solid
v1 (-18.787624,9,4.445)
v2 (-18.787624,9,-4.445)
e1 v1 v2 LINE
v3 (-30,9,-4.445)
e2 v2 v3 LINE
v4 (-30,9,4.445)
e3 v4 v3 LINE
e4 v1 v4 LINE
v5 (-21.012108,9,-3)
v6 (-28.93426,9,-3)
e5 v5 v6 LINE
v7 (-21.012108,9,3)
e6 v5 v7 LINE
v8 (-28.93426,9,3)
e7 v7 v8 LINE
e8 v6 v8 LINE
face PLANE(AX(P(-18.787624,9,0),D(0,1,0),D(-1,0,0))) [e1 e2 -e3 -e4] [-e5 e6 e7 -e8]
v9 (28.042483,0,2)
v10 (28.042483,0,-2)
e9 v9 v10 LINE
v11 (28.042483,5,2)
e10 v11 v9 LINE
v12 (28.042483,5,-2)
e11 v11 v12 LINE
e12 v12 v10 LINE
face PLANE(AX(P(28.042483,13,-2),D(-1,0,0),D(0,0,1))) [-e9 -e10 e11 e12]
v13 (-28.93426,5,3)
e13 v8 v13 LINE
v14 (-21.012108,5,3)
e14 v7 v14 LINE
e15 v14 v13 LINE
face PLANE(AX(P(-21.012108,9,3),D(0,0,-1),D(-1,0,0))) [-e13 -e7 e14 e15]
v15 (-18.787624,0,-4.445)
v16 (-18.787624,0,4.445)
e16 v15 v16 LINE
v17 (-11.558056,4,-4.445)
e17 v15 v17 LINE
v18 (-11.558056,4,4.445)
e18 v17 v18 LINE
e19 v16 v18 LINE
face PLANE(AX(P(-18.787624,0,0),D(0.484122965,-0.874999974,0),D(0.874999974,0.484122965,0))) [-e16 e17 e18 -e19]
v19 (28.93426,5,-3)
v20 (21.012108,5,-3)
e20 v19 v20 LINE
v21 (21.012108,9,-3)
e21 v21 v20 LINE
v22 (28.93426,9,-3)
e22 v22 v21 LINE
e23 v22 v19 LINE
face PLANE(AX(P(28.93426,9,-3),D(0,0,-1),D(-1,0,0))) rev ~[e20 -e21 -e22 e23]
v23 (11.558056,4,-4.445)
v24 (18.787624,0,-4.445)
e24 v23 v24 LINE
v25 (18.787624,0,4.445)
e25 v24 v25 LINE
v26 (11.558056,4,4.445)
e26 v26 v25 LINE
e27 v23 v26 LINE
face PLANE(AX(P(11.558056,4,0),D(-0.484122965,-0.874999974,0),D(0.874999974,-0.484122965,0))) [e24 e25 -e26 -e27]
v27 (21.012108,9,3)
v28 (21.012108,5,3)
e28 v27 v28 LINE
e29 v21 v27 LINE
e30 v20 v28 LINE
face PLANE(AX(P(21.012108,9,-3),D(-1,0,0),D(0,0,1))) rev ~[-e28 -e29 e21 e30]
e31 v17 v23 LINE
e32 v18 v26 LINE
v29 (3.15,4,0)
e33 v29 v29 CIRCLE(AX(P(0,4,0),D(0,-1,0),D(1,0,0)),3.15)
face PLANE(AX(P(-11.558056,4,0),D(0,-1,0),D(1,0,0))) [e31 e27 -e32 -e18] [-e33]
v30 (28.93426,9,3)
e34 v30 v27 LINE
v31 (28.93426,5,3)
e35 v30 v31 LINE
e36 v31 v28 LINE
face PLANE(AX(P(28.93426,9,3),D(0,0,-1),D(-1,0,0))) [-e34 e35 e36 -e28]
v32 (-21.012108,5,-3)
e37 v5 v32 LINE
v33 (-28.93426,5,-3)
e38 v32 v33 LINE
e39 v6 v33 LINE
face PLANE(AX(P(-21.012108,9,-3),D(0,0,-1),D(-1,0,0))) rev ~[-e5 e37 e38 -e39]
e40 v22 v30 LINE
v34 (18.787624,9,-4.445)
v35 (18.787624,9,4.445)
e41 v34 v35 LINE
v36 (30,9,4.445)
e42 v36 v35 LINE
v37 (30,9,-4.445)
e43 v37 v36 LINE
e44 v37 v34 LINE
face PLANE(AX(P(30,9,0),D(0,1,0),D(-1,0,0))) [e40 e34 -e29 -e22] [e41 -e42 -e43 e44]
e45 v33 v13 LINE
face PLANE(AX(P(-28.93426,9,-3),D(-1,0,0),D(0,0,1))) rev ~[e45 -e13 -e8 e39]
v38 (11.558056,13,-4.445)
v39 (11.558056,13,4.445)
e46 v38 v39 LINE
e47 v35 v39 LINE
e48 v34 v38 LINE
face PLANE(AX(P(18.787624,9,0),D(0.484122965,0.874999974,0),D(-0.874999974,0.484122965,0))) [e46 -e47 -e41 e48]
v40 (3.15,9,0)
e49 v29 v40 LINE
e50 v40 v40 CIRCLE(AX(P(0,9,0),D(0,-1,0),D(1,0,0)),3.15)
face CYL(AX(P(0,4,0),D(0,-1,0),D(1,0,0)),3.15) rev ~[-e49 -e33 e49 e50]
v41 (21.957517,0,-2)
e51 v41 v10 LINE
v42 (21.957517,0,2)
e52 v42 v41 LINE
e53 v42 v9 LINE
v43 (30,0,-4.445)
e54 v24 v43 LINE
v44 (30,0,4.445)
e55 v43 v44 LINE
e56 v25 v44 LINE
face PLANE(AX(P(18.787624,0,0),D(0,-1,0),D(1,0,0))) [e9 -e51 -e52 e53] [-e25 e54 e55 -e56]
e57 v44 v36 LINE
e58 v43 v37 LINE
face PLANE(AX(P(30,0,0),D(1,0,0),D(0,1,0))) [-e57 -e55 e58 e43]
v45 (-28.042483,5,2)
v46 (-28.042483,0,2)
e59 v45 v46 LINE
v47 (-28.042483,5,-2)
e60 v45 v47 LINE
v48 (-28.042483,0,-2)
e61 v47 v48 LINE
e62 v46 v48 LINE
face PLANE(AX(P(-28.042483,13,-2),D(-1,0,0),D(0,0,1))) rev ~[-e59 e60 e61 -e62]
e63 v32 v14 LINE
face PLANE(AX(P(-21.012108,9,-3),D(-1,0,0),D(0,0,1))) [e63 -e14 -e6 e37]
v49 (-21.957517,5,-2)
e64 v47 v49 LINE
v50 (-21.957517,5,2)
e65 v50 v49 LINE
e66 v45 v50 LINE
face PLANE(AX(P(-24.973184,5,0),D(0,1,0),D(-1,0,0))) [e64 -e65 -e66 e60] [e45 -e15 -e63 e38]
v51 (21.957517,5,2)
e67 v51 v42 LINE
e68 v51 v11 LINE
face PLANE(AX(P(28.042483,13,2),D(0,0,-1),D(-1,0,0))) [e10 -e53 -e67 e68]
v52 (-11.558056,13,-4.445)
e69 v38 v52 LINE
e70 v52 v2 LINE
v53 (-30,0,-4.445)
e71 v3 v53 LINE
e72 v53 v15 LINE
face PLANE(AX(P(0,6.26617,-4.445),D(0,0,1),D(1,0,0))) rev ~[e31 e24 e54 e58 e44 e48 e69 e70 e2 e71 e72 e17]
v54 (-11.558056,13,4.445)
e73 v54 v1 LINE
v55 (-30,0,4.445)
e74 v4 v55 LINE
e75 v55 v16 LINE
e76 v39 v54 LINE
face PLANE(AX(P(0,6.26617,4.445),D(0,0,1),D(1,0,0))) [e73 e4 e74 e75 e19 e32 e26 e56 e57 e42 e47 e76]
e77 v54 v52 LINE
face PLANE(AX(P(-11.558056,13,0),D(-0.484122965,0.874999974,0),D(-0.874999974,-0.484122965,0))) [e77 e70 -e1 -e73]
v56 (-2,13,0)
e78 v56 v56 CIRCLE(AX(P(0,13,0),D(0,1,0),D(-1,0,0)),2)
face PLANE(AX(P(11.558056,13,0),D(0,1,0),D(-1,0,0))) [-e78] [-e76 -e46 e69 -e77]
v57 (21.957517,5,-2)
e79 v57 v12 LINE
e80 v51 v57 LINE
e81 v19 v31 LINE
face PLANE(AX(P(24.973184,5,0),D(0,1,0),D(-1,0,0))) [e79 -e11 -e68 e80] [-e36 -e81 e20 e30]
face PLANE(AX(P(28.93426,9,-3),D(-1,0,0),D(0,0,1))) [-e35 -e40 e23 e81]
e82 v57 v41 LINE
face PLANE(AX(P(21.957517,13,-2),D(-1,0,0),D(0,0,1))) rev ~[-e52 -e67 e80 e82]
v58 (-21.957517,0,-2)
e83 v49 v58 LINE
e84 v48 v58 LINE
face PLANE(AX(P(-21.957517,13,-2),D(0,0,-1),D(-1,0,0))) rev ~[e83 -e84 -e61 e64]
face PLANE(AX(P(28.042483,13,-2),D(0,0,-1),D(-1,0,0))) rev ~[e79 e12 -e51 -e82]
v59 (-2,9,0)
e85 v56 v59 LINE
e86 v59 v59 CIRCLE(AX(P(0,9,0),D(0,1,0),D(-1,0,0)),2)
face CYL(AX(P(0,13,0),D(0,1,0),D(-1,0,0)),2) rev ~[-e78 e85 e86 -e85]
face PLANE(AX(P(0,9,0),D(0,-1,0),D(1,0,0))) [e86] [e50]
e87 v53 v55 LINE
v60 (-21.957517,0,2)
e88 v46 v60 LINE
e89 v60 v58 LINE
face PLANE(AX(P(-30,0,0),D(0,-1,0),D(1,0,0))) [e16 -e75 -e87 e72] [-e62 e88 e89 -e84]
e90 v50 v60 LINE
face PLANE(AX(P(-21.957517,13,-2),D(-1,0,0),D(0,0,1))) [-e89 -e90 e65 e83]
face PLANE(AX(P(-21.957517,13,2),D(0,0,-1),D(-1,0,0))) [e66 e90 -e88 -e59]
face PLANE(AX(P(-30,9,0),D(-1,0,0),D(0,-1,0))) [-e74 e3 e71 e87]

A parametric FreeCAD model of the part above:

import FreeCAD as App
import Part
import Sketcher
Q = App.Units.Quantity


def add_polygon(sketch, points):
    """Adds a closed chain of lines whose ends are joined by coincident constraints."""
    first, n = sketch.GeometryCount, len(points)
    for a, b in zip(points, points[1:] + points[:1]):
        sketch.addGeometry(Part.LineSegment(App.Vector(*a, 0), App.Vector(*b, 0)), False)
    for i in range(n):
        sketch.addConstraint(Sketcher.Constraint("Coincident", first + i, 2, first + (i + 1) % n, 1))

doc = App.newDocument("Part")
body = doc.addObject("PartDesign::Body", "Body")

sketch1 = body.newObject("Sketcher::SketchObject", "Sketch")
sketch1.AttachmentSupport = (doc.getObject("XY_Plane"), [""])
sketch1.MapMode = "FlatFace"
add_polygon(sketch1, [(-30, 9), (-30, 0), (-19, 0), (-12, 4), (12, 4), (19, 0), (30, 0), (30, 9), (19, 9), (12, 13), (-12, 13), (-19, 9)])
sketch1.addConstraint([
    Sketcher.Constraint("Vertical", 0),
    Sketcher.Constraint("Horizontal", 1),
    Sketcher.Constraint("Horizontal", 3),
    Sketcher.Constraint("Horizontal", 5),
    Sketcher.Constraint("Vertical", 6),
    Sketcher.Constraint("Horizontal", 7),
    Sketcher.Constraint("Horizontal", 9),
    Sketcher.Constraint("Horizontal", 11),
    Sketcher.Constraint("Symmetric", 1, 2, 4, 2, -1, 1),
    Sketcher.Constraint("Symmetric", 0, 2, 5, 2, -2),
    Sketcher.Constraint("Symmetric", 7, 2, 10, 2, -2),
    Sketcher.Constraint("Parallel", 4, 8),
    Sketcher.Constraint("Parallel", 2, 10),
    Sketcher.Constraint("Vertical", 4, 2, 7, 2),
    Sketcher.Constraint("Vertical", 3, 2, 8, 2),
    Sketcher.Constraint("Equal", 2, 4),
    Sketcher.Constraint("DistanceY", 0, 2, 0, 1, Q("9 mm")),
    Sketcher.Constraint("DistanceX", 0, 2, -1, 1, Q("30 mm")),
    Sketcher.Constraint("DistanceY", -1, 1, 2, 2, Q("4 mm")),
    Sketcher.Constraint("DistanceX", 1, 1, 1, 2, Q("11.212376 mm")),
    Sketcher.Constraint("DistanceX", 3, 1, 3, 2, Q("23.116112 mm")),
])
pad1 = body.newObject("PartDesign::Pad", "Pad")
pad1.Profile = sketch1
pad1.Length = 8.89
pad1.Midplane = True

sketch2 = body.newObject("Sketcher::SketchObject", "Sketch001")
sketch2.AttachmentSupport = (doc.getObject("XZ_Plane"), [""])
sketch2.MapMode = "FlatFace"
sketch2.AttachmentOffset = App.Placement(App.Vector(0, 0, -13), App.Rotation())
sketch2.addGeometry(Part.Circle(App.Vector(0, 0, 0), App.Vector(0, 0, 1), 2), False)
add_polygon(sketch2, [(28, 2), (28, -2), (22, -2), (22, 2)])
add_polygon(sketch2, [(-22, 2), (-22, -2), (-28, -2), (-28, 2)])
sketch2.addConstraint([
    Sketcher.Constraint("Vertical", 1),
    Sketcher.Constraint("Horizontal", 2),
    Sketcher.Constraint("Vertical", 3),
    Sketcher.Constraint("Horizontal", 4),
    Sketcher.Constraint("Vertical", 5),
    Sketcher.Constraint("Horizontal", 6),
    Sketcher.Constraint("Vertical", 7),
    Sketcher.Constraint("Horizontal", 8),
    Sketcher.Constraint("Coincident", 0, 3, -1, 1),
    Sketcher.Constraint("Symmetric", 3, 2, 5, 2, -1, 1),
    Sketcher.Constraint("Symmetric", 1, 2, 7, 2, -1, 1),
    Sketcher.Constraint("Horizontal", 2, 2, 5, 2),
    Sketcher.Constraint("Diameter", 0, Q("4 mm")),
    Sketcher.Constraint("DistanceY", 1, 2, 1, 1, Q("4 mm")),
    Sketcher.Constraint("DistanceX", 5, 2, 1, 2, Q("50 mm")),
    Sketcher.Constraint("DistanceX", 2, 2, 2, 1, Q("6.084966 mm")),
])
pocket1 = body.newObject("PartDesign::Pocket", "Pocket")
pocket1.Profile = sketch2
pocket1.Length = 25
pocket1.Reversed = True

sketch3 = body.newObject("Sketcher::SketchObject", "Sketch002")
sketch3.AttachmentSupport = (doc.getObject("XZ_Plane"), [""])
sketch3.MapMode = "FlatFace"
sketch3.AttachmentOffset = App.Placement(App.Vector(0, 0, -4), App.Rotation())
sketch3.addGeometry(Part.Circle(App.Vector(0, 0, 0), App.Vector(0, 0, 1), 3.1), False)
sketch3.addConstraint([
    Sketcher.Constraint("Coincident", 0, 3, -1, 1),
    Sketcher.Constraint("Diameter", 0, Q("6.3 mm")),
])
pocket2 = body.newObject("PartDesign::Pocket", "Pocket001")
pocket2.Profile = sketch3
pocket2.Length = 5

sketch4 = body.newObject("Sketcher::SketchObject", "Sketch003")
sketch4.AttachmentSupport = (doc.getObject("XZ_Plane"), [""])
sketch4.MapMode = "FlatFace"
sketch4.AttachmentOffset = App.Placement(App.Vector(0, 0, -9), App.Rotation())
add_polygon(sketch4, [(29, 3), (29, -3), (21, -3), (21, 3)])
add_polygon(sketch4, [(-21, 3), (-21, -3), (-29, -3), (-29, 3)])
sketch4.addConstraint([
    Sketcher.Constraint("Vertical", 0),
    Sketcher.Constraint("Horizontal", 1),
    Sketcher.Constraint("Vertical", 2),
    Sketcher.Constraint("Horizontal", 3),
    Sketcher.Constraint("Vertical", 4),
    Sketcher.Constraint("Horizontal", 5),
    Sketcher.Constraint("Vertical", 6),
    Sketcher.Constraint("Horizontal", 7),
    Sketcher.Constraint("Symmetric", 2, 2, 4, 2, -1, 1),
    Sketcher.Constraint("Symmetric", 0, 2, 6, 2, -1, 1),
    Sketcher.Constraint("Horizontal", 1, 2, 4, 2),
    Sketcher.Constraint("DistanceY", 0, 2, 0, 1, Q("6 mm")),
    Sketcher.Constraint("DistanceX", 1, 2, 1, 1, Q("7.922152 mm")),
    Sketcher.Constraint("DistanceX", -1, 1, 0, 2, Q("28.93426 mm")),
])
pocket3 = body.newObject("PartDesign::Pocket", "Pocket002")
pocket3.Profile = sketch4
pocket3.Length = 4
pocket3.Reversed = True

doc.recompute()
